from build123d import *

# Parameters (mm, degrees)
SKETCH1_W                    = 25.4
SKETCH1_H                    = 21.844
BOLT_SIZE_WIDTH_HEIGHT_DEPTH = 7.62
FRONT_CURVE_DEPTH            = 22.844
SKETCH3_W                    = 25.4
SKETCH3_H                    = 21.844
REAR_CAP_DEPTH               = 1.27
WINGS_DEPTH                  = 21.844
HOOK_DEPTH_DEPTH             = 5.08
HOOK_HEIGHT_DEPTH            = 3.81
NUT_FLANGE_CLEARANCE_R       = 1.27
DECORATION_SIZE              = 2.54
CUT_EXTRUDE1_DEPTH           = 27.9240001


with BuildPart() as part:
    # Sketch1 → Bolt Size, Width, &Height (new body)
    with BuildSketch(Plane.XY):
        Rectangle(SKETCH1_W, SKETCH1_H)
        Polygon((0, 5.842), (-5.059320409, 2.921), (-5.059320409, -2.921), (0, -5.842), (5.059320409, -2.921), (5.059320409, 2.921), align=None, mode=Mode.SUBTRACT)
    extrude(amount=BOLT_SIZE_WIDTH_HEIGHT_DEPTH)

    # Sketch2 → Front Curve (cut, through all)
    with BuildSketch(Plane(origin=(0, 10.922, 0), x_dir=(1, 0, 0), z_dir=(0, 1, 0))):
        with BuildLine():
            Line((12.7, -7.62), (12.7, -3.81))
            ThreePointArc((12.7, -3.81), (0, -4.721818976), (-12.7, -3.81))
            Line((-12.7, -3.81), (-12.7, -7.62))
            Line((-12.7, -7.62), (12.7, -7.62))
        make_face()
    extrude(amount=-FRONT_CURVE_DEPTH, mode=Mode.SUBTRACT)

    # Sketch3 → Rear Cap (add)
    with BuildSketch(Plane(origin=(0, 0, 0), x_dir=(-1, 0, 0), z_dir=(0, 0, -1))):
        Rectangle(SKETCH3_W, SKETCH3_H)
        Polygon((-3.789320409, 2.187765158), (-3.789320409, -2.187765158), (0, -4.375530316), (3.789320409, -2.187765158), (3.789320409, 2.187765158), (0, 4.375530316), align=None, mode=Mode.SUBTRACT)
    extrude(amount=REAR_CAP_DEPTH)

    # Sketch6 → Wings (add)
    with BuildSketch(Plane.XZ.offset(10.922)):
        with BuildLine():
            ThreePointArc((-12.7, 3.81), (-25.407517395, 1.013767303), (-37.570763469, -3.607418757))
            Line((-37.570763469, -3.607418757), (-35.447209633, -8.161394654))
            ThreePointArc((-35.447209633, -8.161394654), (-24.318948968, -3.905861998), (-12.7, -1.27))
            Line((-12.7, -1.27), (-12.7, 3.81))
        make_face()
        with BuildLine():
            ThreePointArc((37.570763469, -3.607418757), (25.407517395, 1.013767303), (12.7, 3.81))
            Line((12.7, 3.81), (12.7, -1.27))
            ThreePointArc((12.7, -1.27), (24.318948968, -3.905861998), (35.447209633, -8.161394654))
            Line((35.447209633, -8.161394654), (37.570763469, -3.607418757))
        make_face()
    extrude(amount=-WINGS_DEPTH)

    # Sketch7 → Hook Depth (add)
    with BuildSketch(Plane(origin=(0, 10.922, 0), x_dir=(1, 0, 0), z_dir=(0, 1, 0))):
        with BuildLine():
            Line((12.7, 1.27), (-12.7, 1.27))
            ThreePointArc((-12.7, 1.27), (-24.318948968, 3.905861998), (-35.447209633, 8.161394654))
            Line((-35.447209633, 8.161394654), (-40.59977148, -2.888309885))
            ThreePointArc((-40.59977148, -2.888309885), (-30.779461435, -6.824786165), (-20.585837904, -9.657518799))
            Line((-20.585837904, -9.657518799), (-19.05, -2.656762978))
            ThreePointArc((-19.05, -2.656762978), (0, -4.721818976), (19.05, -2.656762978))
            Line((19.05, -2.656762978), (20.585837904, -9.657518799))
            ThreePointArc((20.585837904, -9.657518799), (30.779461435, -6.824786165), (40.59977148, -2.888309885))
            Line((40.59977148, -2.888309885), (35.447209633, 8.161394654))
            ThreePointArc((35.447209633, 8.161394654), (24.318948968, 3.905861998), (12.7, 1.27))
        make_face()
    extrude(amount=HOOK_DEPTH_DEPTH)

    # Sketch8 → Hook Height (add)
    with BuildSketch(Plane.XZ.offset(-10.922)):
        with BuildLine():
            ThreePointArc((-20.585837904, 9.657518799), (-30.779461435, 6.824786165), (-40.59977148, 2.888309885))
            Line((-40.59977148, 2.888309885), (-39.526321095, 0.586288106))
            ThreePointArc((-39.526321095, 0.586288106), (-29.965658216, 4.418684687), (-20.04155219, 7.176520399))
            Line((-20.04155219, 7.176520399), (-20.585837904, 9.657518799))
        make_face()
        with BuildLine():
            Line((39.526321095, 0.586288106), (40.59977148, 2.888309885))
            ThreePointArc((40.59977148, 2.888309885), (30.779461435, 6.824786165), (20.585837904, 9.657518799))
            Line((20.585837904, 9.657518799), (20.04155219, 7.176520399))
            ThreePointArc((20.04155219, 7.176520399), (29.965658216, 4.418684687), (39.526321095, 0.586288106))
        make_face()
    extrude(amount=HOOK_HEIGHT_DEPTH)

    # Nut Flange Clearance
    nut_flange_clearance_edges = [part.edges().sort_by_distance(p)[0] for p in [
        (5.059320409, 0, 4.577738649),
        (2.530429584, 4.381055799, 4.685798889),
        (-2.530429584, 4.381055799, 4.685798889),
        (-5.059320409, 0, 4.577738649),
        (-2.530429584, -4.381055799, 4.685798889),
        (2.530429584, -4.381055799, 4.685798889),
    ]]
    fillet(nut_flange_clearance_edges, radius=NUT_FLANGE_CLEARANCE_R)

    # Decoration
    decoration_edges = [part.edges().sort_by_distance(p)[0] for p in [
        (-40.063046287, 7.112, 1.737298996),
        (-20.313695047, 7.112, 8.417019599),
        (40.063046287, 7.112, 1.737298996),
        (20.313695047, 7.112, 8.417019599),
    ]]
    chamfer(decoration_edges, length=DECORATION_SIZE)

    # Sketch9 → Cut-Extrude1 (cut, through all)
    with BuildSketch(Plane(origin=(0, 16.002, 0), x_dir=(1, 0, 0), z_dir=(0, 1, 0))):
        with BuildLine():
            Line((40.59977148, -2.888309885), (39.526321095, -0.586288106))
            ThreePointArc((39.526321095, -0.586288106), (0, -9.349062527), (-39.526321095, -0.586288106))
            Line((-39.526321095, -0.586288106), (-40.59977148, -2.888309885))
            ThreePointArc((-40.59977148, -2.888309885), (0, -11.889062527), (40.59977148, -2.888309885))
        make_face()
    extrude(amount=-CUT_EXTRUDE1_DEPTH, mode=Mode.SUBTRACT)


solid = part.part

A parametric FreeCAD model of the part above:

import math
import FreeCAD as App
import Part
import Sketcher
from FreeCAD import Vector
Q = App.Units.Quantity


def edges_at(feature, points):
    """Names of the edges that pass closest to the given points."""
    edges = feature.Shape.Edges
    near = lambda p: min(range(len(edges)), key=lambda i: edges[i].distToShape(Part.Vertex(*p))[0])
    return sorted({f"Edge{near(p) + 1}" for p in points})


def add_polygon(sketch, points):
    """Adds a closed chain of lines whose ends are joined by coincident constraints."""
    first, n = sketch.GeometryCount, len(points)
    for a, b in zip(points, points[1:] + points[:1]):
        sketch.addGeometry(Part.LineSegment(App.Vector(*a, 0), App.Vector(*b, 0)), False)
    for i in range(n):
        sketch.addConstraint(Sketcher.Constraint("Coincident", first + i, 2, first + (i + 1) % n, 1))

doc = App.newDocument("Part")
body = doc.addObject("PartDesign::Body", "Body")

# Sketch on XY plane
sketch1 = body.newObject("Sketcher::SketchObject", "Sketch")
sketch1.AttachmentSupport = (doc.getObject("XY_Plane"), [""])
sketch1.MapMode = "FlatFace"
add_polygon(sketch1, [(-13, 11), (-13, -11), (13, -11), (13, 11)])  # lines 0-3
add_polygon(sketch1, [(-5, 3), (0, 6), (5, 3), (5, -3), (0, -6), (-5, -3)])  # lines 4-9
sketch1.addConstraint([
    Sketcher.Constraint("Vertical", 0),
    Sketcher.Constraint("Horizontal", 1),
    Sketcher.Constraint("Vertical", 2),
    Sketcher.Constraint("Horizontal", 3),
    Sketcher.Constraint("Vertical", 6),
    Sketcher.Constraint("Vertical", 9),
    Sketcher.Constraint("Symmetric", 0, 2, 2, 2, -1, 1),
    Sketcher.Constraint("Symmetric", 4, 2, 7, 2, -1, 1),
    Sketcher.Constraint("Symmetric", 5, 2, 8, 2, -1, 1),
    Sketcher.Constraint("PointOnObject", 4, 2, -2),
    Sketcher.Constraint("Parallel", 4, 7),
    Sketcher.Constraint("Horizontal", 6, 2, 8, 2),
    Sketcher.Constraint("DistanceX", 1, 1, 1, 2, Q("1 in")),
    Sketcher.Constraint("Angle", 4, Q("30 deg")),
    Sketcher.Constraint("DistanceY", 0, 2, 0, 1, Q("0.86 in")),
    Sketcher.Constraint("DistanceY", 6, 2, 6, 1, Q("0.23 in")),
    Sketcher.Constraint("DistanceY", 4, 2, 2, 2, Q("0.2 in")),
])
pad1 = body.newObject("PartDesign::Pad", "Pad")
pad1.Profile = sketch1
pad1.Length = Q("0.3 in")

# Sketch on XZ plane
sketch2 = body.newObject("Sketcher::SketchObject", "Sketch001")
sketch2.AttachmentSupport = (doc.getObject("XZ_Plane"), [""])
sketch2.MapMode = "FlatFace"
sketch2.AttachmentOffset = App.Placement(Vector(0, 0, -0.43 * 25.4), App.Rotation())
sketch2.addGeometry([
    Part.LineSegment(Vector(12.7, 7.6, 0), Vector(12.7, 3.8, 0)),
    Part.ArcOfCircle(Part.Circle(Vector(0, -84.2, 0), Vector(0, 0, 1), 88.9), math.radians(81.79), math.radians(98.21)),
    Part.LineSegment(Vector(-12.7, 3.8, 0), Vector(-12.7, 7.6, 0)),
    Part.LineSegment(Vector(-12.7, 7.6, 0), Vector(12.7, 7.6, 0)),
], False)
sketch2.addConstraint([
    Sketcher.Constraint("Coincident", 0, 2, 1, 1),
    Sketcher.Constraint("Coincident", 1, 2, 2, 1),
    Sketcher.Constraint("Coincident", 2, 2, 3, 1),
    Sketcher.Constraint("Coincident", 3, 2, 0, 1),
    Sketcher.Constraint("Vertical", 0),
    Sketcher.Constraint("Vertical", 2),
    Sketcher.Constraint("Horizontal", 3),
    Sketcher.Constraint("Symmetric", 0, 2, 1, 2, -2),
    Sketcher.Constraint("Radius", 1, Q("3.5 in")),
    Sketcher.Constraint("DistanceX", 3, 1, 3, 2, Q("1 in")),
    Sketcher.Constraint("DistanceY", 0, 2, 0, 1, Q("0.15 in")),
    Sketcher.Constraint("DistanceY", -1, 1, 2, 2, Q("0.3 in")),
])
pocket1 = body.newObject("PartDesign::Pocket", "Pocket")
pocket1.Profile = sketch2
pocket1.Type = "ThroughAll"
pocket1.Reversed = True

# Sketch on XY plane
sketch3 = body.newObject("Sketcher::SketchObject", "Sketch002")
sketch3.AttachmentSupport = (doc.getObject("XY_Plane"), [""])
sketch3.MapMode = "FlatFace"
add_polygon(sketch3, [(12.7, 10.9), (12.7, -10.9), (-12.7, -10.9), (-12.7, 10.9)])  # lines 0-3
add_polygon(sketch3, [(3.8, -2.2), (3.8, 2.2), (0, 4.4), (-3.8, 2.2), (-3.8, -2.2), (0, -4.4)])  # lines 4-9
sketch3.addConstraint([
    Sketcher.Constraint("Vertical", 0),
    Sketcher.Constraint("Horizontal", 1),
    Sketcher.Constraint("Vertical", 2),
    Sketcher.Constraint("Horizontal", 3),
    Sketcher.Constraint("Vertical", 4),
    Sketcher.Constraint("Vertical", 7),
    Sketcher.Constraint("Symmetric", 0, 2, 2, 2, -1, 1),
    Sketcher.Constraint("Symmetric", 4, 2, 7, 2, -1, 1),
    Sketcher.Constraint("Symmetric", 5, 2, 8, 2, -1, 1),
    Sketcher.Constraint("PointOnObject", 5, 2, -2),
    Sketcher.Constraint("Parallel", 6, 9),
    Sketcher.Constraint("Horizontal", 4, 2, 6, 2),
    Sketcher.Constraint("DistanceX", 1, 2, 1, 1, Q("1 in")),
    Sketcher.Constraint("Angle", 5, Q("150 deg")),
    Sketcher.Constraint("DistanceY", 0, 2, 0, 1, Q("0.86 in")),
    Sketcher.Constraint("DistanceY", 4, 1, 4, 2, Q("4.37553 mm")),
    Sketcher.Constraint("Distance", 5, Q("4.37553 mm")),
])
pad2 = body.newObject("PartDesign::Pad", "Pad001")
pad2.Profile = sketch3
pad2.Length = Q("0.05 in")
pad2.Reversed = True

# Sketch on XZ plane
sketch4 = body.newObject("Sketcher::SketchObject", "Sketch003")
sketch4.AttachmentSupport = (doc.getObject("XZ_Plane"), [""])
sketch4.MapMode = "FlatFace"
sketch4.AttachmentOffset = App.Placement(Vector(0, 0, 0.43 * 25.4), App.Rotation())
sketch4.addGeometry([
    Part.ArcOfCircle(Part.Circle(Vector(0, -84, 0), Vector(0, 0, 1), 89), math.radians(98.21), math.radians(115)),  # 0
    Part.LineSegment(Vector(-38, -4, 0), Vector(-35, -8, 0)),  # 1
    Part.ArcOfCircle(Part.Circle(Vector(0, -84, 0), Vector(0, 0, 1), 84), math.radians(98.71), math.radians(115)),  # 2
    Part.LineSegment(Vector(-13, -1, 0), Vector(-13, 4, 0)),  # 3
    Part.ArcOfCircle(Part.Circle(Vector(0, -84, 0), Vector(0, 0, 1), 89), math.radians(65), math.radians(81.79)),  # 4
    Part.LineSegment(Vector(13, 4, 0), Vector(13, -1, 0)),  # 5
    Part.ArcOfCircle(Part.Circle(Vector(0, -84, 0), Vector(0, 0, 1), 84), math.radians(65), math.radians(81.29)),  # 6
    Part.LineSegment(Vector(35, -8, 0), Vector(38, -4, 0)),  # 7
], False)
sketch4.addConstraint([
    Sketcher.Constraint("Coincident", 0, 2, 1, 1),
    Sketcher.Constraint("Coincident", 1, 2, 2, 2),
    Sketcher.Constraint("Coincident", 2, 1, 3, 1),
    Sketcher.Constraint("Coincident", 3, 2, 0, 1),
    Sketcher.Constraint("Coincident", 4, 2, 5, 1),
    Sketcher.Constraint("Coincident", 5, 2, 6, 2),
    Sketcher.Constraint("Coincident", 6, 1, 7, 1),
    Sketcher.Constraint("Coincident", 7, 2, 4, 1),
    Sketcher.Constraint("Vertical", 3),
    Sketcher.Constraint("Vertical", 5),
    Sketcher.Constraint("Coincident", 2, 3, 0, 3),
    Sketcher.Constraint("Coincident", 4, 3, 0, 3),
    Sketcher.Constraint("Coincident", 6, 3, 0, 3),
    Sketcher.Constraint("Equal", 0, 4),
    Sketcher.Constraint("Equal", 2, 6),
    Sketcher.Constraint("Symmetric", 3, 2, 4, 2, -2),
    Sketcher.Constraint("Horizontal", 1, 2, 6, 1),
    Sketcher.Constraint("Horizontal", 0, 2, 7, 2),
    Sketcher.Constraint("Radius", 0, Q("3.5 in")),
    Sketcher.Constraint("DistanceY", 3, 1, 3, 2, Q("0.2 in")),
    Sketcher.Constraint("Angle", 1, Q("-65 deg")),
    Sketcher.Constraint("DistanceX", 3, 2, 4, 2, Q("1 in")),
    Sketcher.Constraint("DistanceY", 2, 1, -1, 1, Q("0.05 in")),
    Sketcher.Constraint("DistanceY", 0, 2, -1, 1, Q("3.607419 mm")),
])
pad3 = body.newObject("PartDesign::Pad", "Pad002")
pad3.Profile = sketch4
pad3.Length = Q("0.86 in")
pad3.Reversed = True

# Sketch on XZ plane
sketch5 = body.newObject("Sketcher::SketchObject", "Sketch004")
sketch5.AttachmentSupport = (doc.getObject("XZ_Plane"), [""])
sketch5.MapMode = "FlatFace"
sketch5.AttachmentOffset = App.Placement(Vector(0, 0, -0.43 * 25.4), App.Rotation())
sketch5.addGeometry([
    Part.LineSegment(Vector(13, -1, 0), Vector(-13, -1, 0)),  # 0
    Part.ArcOfCircle(Part.Circle(Vector(0, -84, 0), Vector(0, 0, 1), 84), math.radians(98.71), math.radians(115)),  # 1
    Part.LineSegment(Vector(-35, -8, 0), Vector(-41, 3, 0)),  # 2
    Part.ArcOfCircle(Part.Circle(Vector(0, -84, 0), Vector(0, 0, 1), 96), math.radians(102.37), math.radians(115)),  # 3
    Part.LineSegment(Vector(-21, 10, 0), Vector(-19, 3, 0)),  # 4
    Part.ArcOfCircle(Part.Circle(Vector(0, -84, 0), Vector(0, 0, 1), 89), math.radians(78), math.radians(102)),  # 5
    Part.LineSegment(Vector(19, 3, 0), Vector(21, 10, 0)),  # 6
    Part.ArcOfCircle(Part.Circle(Vector(0, -84, 0), Vector(0, 0, 1), 96), math.radians(65), math.radians(77.63)),  # 7
    Part.LineSegment(Vector(41, 3, 0), Vector(35, -8, 0)),  # 8
    Part.ArcOfCircle(Part.Circle(Vector(0, -84, 0), Vector(0, 0, 1), 84), math.radians(65), math.radians(81.29)),  # 9
], False)
sketch5.addConstraint([
    Sketcher.Constraint("Coincident", 0, 2, 1, 1),
    Sketcher.Constraint("Coincident", 1, 2, 2, 1),
    Sketcher.Constraint("Coincident", 2, 2, 3, 2),
    Sketcher.Constraint("Coincident", 3, 1, 4, 1),
    Sketcher.Constraint("Coincident", 4, 2, 5, 2),
    Sketcher.Constraint("Coincident", 5, 1, 6, 1),
    Sketcher.Constraint("Coincident", 6, 2, 7, 2),
    Sketcher.Constraint("Coincident", 7, 1, 8, 1),
    Sketcher.Constraint("Coincident", 8, 2, 9, 1),
    Sketcher.Constraint("Coincident", 9, 2, 0, 1),
    Sketcher.Constraint("Horizontal", 0),
    Sketcher.Constraint("Coincident", 3, 3, 1, 3),
    Sketcher.Constraint("Coincident", 5, 3, 1, 3),
    Sketcher.Constraint("Coincident", 7, 3, 1, 3),
    Sketcher.Constraint("Coincident", 9, 3, 1, 3),
    Sketcher.Constraint("Equal", 3, 7),
    Sketcher.Constraint("Equal", 1, 9),
    Sketcher.Constraint("Symmetric", 4, 2, 5, 1, -2),
    Sketcher.Constraint("Horizontal", 3, 1, 6, 2),
    Sketcher.Constraint("Horizontal", 2, 2, 7, 1),
    Sketcher.Constraint("Horizontal", 1, 2, 8, 2),
    Sketcher.Constraint("Radius", 5, Q("3.5 in")),
    Sketcher.Constraint("DistanceX", 0, 2, 0, 1, Q("1 in")),
    Sketcher.Constraint("Angle", 2, Q("115 deg")),
    Sketcher.Constraint("DistanceX", 4, 2, 5, 1, Q("1.5 in")),
    Sketcher.Constraint("Distance", 2, Q("0.48 in")),
    Sketcher.Constraint("DistanceY", 0, 2, -1, 1, Q("0.05 in")),
    Sketcher.Constraint("Radius", 1, Q("83.875244 mm")),
    Sketcher.Constraint("DistanceY", 5, 3, 3, 1, Q("93.8357 mm")),
    Sketcher.Constraint("DistanceX", 1, 2, -1, 1, Q("35.44721 mm")),
])
pad4 = body.newObject("PartDesign::Pad", "Pad003")
pad4.Profile = sketch5
pad4.Length = Q("0.2 in")
pad4.Reversed = True

# Sketch on XZ plane
sketch6 = body.newObject("Sketcher::SketchObject", "Sketch005")
sketch6.AttachmentSupport = (doc.getObject("XZ_Plane"), [""])
sketch6.MapMode = "FlatFace"
sketch6.AttachmentOffset = App.Placement(Vector(0, 0, -0.43 * 25.4), App.Rotation())
sketch6.addGeometry([
    Part.ArcOfCircle(Part.Circle(Vector(0, -84.2, 0), Vector(0, 0, 1), 96.1), math.radians(102.37), math.radians(115)),  # 0
    Part.LineSegment(Vector(-40.6, 2.9, 0), Vector(-39.5, 0.6, 0)),  # 1
    Part.ArcOfCircle(Part.Circle(Vector(0, -84.2, 0), Vector(0, 0, 1), 93.5), math.radians(102.37), math.radians(115)),  # 2
    Part.LineSegment(Vector(-20, 7.2, 0), Vector(-20.6, 9.7, 0)),  # 3
    Part.LineSegment(Vector(39.5, 0.6, 0), Vector(40.6, 2.9, 0)),  # 4
    Part.ArcOfCircle(Part.Circle(Vector(0, -84.2, 0), Vector(0, 0, 1), 96.1), math.radians(65), math.radians(77.63)),  # 5
    Part.LineSegment(Vector(20.6, 9.7, 0), Vector(20, 7.2, 0)),  # 6
    Part.ArcOfCircle(Part.Circle(Vector(0, -84.2, 0), Vector(0, 0, 1), 93.5), math.radians(65), math.radians(77.63)),  # 7
], False)
sketch6.addConstraint([
    Sketcher.Constraint("Coincident", 0, 2, 1, 1),
    Sketcher.Constraint("Coincident", 1, 2, 2, 2),
    Sketcher.Constraint("Coincident", 2, 1, 3, 1),
    Sketcher.Constraint("Coincident", 3, 2, 0, 1),
    Sketcher.Constraint("Coincident", 4, 2, 5, 1),
    Sketcher.Constraint("Coincident", 5, 2, 6, 1),
    Sketcher.Constraint("Coincident", 6, 2, 7, 2),
    Sketcher.Constraint("Coincident", 7, 1, 4, 1),
    Sketcher.Constraint("Coincident", 2, 3, 0, 3),
    Sketcher.Constraint("Coincident", 5, 3, 0, 3),
    Sketcher.Constraint("Coincident", 7, 3, 0, 3),
    Sketcher.Constraint("Equal", 0, 5),
    Sketcher.Constraint("Equal", 2, 7),
    Sketcher.Constraint("Symmetric", 0, 2, 4, 2, -2),
    Sketcher.Constraint("Horizontal", 3, 2, 5, 2),
    Sketcher.Constraint("Horizontal", 2, 1, 6, 2),
    Sketcher.Constraint("Horizontal", 1, 2, 7, 1),
    Sketcher.Constraint("Angle", 1, Q("-65 deg")),
    Sketcher.Constraint("Distance", 1, Q("0.1 in")),
    Sketcher.Constraint("Radius", 0, Q("96.067244 mm")),
    Sketcher.Constraint("DistanceY", 5, 3, 2, 1, Q("91.354701 mm")),
    Sketcher.Constraint("DistanceY", 2, 1, 3, 2, Q("2.480998 mm")),
    Sketcher.Constraint("DistanceY", 0, 3, -1, 1, Q("84.178181 mm")),
    Sketcher.Constraint("DistanceX", 0, 2, -1, 1, Q("40.599771 mm")),
])
pad5 = body.newObject("PartDesign::Pad", "Pad004")
pad5.Profile = sketch6
pad5.Length = Q("0.15 in")
doc.recompute()

fillet = body.newObject("PartDesign::Fillet", "Fillet")
fillet.Base = (pad5, edges_at(pad5, [
    (5.059, 0, 4.578),
    (2.53, 4.381, 4.686),
    (-2.53, 4.381, 4.686),
    (-5.059, 0, 4.578),
    (-2.53, -4.381, 4.686),
    (2.53, -4.381, 4.686),
]))
fillet.Radius = Q("0.05 in")
doc.recompute()

chamfer = body.newObject("PartDesign::Chamfer", "Chamfer")
chamfer.Base = (fillet, edges_at(fillet, [
    (-40.063, 7.112, 1.737),
    (-20.314, 7.112, 8.417),
    (40.063, 7.112, 1.737),
    (20.314, 7.112, 8.417),
]))
chamfer.Size = Q("0.1 in")

# Sketch on XZ plane
sketch7 = body.newObject("Sketcher::SketchObject", "Sketch006")
sketch7.AttachmentSupport = (doc.getObject("XZ_Plane"), [""])
sketch7.MapMode = "FlatFace"
sketch7.AttachmentOffset = App.Placement(Vector(0, 0, -0.63 * 25.4), App.Rotation())
sketch7.addGeometry([
    Part.LineSegment(Vector(40.6, 2.9, 0), Vector(39.5, 0.6, 0)),
    Part.ArcOfCircle(Part.Circle(Vector(0, -84.2, 0), Vector(0, 0, 1), 93.5), math.radians(65), math.radians(115)),
    Part.LineSegment(Vector(-39.5, 0.6, 0), Vector(-40.6, 2.9, 0)),
    Part.ArcOfCircle(Part.Circle(Vector(0, -84.2, 0), Vector(0, 0, 1), 96.1), math.radians(65), math.radians(115)),
], False)
sketch7.addConstraint([
    Sketcher.Constraint("Coincident", 0, 2, 1, 1),
    Sketcher.Constraint("Coincident", 1, 2, 2, 1),
    Sketcher.Constraint("Coincident", 2, 2, 3, 2),
    Sketcher.Constraint("Coincident", 3, 1, 0, 1),
    Sketcher.Constraint("Coincident", 3, 3, 1, 3),
    Sketcher.Constraint("Symmetric", 0, 2, 1, 2, -2),
    Sketcher.Constraint("Horizontal", 2, 2, 3, 1),
    Sketcher.Constraint("Angle", 0, Q("-115 deg")),
    Sketcher.Constraint("Distance", 0, Q("0.1 in")),
    Sketcher.Constraint("Radius", 1, Q("93.527244 mm")),
    Sketcher.Constraint("DistanceY", 1, 3, -1, 1, Q("84.178181 mm")),
    Sketcher.Constraint("DistanceX", -1, 1, 0, 2, Q("39.526321 mm")),
])
pocket2 = body.newObject("PartDesign::Pocket", "Pocket001")
pocket2.Profile = sketch7
pocket2.Type = "ThroughAll"
pocket2.Reversed = True

doc.recompute()
